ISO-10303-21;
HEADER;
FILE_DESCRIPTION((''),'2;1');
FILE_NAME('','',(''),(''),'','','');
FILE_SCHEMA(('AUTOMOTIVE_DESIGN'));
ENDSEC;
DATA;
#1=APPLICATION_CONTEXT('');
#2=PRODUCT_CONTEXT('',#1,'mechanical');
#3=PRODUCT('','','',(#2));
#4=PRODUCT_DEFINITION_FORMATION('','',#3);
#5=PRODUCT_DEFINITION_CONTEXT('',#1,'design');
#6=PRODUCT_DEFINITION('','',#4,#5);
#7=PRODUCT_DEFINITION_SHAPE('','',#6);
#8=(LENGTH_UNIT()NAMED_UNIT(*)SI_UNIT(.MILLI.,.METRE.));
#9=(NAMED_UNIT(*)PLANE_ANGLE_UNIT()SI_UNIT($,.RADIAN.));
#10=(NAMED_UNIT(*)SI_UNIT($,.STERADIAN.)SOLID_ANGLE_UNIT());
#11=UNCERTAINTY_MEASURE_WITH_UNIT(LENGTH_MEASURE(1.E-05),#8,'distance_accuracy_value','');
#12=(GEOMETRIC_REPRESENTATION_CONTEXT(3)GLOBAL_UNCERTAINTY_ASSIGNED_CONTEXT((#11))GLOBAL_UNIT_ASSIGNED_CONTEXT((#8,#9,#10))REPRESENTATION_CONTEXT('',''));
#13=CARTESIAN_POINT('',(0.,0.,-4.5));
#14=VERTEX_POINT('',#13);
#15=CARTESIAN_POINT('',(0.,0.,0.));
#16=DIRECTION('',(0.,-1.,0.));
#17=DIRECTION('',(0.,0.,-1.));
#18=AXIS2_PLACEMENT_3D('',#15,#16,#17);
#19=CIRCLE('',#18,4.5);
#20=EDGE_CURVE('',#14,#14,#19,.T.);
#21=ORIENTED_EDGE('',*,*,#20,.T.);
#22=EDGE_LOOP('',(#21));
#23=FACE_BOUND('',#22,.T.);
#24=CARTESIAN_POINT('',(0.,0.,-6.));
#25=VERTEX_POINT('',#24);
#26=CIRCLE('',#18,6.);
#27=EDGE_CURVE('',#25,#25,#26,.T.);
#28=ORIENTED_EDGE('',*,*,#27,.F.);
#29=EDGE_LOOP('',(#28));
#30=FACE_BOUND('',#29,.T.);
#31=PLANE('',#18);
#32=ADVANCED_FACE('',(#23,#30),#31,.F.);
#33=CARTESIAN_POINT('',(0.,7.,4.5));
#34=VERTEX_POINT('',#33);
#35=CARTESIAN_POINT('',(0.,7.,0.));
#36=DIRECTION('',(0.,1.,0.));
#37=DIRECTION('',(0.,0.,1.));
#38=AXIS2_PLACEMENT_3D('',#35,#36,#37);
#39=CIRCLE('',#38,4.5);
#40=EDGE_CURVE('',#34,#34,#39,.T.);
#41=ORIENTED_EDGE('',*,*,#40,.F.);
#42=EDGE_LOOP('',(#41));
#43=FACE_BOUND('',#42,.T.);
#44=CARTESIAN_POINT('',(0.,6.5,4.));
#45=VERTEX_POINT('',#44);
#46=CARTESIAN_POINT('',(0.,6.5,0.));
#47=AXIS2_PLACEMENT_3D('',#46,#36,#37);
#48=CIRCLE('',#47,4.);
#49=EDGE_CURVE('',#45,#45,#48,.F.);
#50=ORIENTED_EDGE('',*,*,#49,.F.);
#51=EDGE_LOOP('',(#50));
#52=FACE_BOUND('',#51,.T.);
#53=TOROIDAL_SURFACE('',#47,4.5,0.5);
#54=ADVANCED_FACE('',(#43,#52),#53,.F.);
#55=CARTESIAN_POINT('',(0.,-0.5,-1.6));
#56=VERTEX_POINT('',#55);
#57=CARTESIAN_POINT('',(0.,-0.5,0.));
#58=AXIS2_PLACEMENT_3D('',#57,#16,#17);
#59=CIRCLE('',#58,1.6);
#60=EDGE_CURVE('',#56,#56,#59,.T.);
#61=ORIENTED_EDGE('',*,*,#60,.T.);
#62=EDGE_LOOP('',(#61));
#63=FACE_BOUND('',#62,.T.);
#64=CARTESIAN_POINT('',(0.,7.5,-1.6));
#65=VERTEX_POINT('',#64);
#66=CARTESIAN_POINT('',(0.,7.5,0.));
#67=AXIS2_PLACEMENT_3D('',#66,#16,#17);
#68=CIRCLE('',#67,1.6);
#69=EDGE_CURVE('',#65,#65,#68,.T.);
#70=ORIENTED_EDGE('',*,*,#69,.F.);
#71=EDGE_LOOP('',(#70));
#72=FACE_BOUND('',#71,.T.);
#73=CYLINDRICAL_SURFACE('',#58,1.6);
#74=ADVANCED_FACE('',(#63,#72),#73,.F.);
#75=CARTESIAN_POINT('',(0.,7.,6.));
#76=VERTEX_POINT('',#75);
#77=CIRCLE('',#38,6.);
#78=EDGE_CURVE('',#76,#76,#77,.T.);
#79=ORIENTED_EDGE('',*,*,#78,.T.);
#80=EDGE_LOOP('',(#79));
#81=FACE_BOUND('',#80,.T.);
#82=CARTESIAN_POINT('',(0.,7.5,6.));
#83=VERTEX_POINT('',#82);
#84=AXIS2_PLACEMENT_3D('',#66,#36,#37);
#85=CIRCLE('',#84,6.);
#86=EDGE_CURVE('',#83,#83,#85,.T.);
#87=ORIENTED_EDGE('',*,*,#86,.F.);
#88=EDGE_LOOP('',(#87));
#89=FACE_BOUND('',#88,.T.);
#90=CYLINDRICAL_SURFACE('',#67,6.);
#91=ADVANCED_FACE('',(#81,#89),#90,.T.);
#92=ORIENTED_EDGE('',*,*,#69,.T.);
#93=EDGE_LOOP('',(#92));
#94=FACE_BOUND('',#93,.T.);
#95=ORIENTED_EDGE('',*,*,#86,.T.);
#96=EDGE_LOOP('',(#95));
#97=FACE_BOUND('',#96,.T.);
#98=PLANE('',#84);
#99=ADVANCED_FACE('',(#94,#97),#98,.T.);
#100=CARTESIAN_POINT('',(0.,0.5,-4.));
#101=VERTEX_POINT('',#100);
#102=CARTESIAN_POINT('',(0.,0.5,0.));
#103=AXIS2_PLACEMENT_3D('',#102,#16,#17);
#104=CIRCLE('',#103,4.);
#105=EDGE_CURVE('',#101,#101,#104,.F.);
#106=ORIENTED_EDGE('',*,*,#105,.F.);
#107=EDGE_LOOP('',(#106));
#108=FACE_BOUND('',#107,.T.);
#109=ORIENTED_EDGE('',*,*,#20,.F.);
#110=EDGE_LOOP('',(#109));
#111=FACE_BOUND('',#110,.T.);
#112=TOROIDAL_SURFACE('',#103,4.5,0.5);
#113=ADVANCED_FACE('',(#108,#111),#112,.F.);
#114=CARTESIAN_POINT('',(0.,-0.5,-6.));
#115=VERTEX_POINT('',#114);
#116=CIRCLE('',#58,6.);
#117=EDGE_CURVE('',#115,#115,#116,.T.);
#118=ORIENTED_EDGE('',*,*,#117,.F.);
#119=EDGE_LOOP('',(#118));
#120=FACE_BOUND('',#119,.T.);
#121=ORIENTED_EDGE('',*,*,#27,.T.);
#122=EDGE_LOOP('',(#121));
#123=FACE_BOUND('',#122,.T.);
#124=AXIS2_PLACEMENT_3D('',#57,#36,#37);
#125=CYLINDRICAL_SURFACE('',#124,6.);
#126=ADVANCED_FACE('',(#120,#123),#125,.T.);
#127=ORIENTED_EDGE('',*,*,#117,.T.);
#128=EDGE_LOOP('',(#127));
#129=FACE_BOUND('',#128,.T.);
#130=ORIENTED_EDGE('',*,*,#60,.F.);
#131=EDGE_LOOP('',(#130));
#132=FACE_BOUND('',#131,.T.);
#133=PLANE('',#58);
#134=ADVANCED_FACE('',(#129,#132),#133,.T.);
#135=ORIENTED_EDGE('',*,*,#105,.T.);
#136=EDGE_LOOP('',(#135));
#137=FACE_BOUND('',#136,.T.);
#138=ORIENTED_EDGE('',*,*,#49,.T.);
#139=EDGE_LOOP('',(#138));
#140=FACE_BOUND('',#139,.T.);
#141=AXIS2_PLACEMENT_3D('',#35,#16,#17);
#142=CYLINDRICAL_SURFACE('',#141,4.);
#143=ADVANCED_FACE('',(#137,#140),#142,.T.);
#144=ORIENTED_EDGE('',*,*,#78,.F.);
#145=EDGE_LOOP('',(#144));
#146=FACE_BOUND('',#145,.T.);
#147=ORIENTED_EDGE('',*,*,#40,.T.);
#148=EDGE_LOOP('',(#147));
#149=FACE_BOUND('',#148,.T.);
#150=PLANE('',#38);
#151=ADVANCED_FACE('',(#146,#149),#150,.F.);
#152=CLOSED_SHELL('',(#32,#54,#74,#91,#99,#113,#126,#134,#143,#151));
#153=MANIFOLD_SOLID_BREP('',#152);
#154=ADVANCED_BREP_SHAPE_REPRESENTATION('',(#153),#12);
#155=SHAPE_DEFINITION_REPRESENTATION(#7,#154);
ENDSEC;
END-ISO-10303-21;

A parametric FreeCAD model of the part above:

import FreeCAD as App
import Part
import Sketcher

V = App.Vector


def edges_at(feature, points):
    """Names of the edges that pass closest to the given points."""
    edges = feature.Shape.Edges
    near = lambda p: min(range(len(edges)), key=lambda i: edges[i].distToShape(Part.Vertex(*p))[0])
    return sorted({f"Edge{near(p) + 1}" for p in points})

doc = App.newDocument("Part")
body = doc.addObject("PartDesign::Body", "Body")

# Sketch on XZ plane
sketch1 = doc.addObject("Sketcher::SketchObject", "Sketch")
body.addObject(sketch1)
sketch1.AttachmentSupport = (doc.XZ_Plane, [""])
sketch1.MapMode = "FlatFace"
sketch1.addGeometry(Part.Circle(V(0, 0, 0), V(0, 0, 1), 4), False)
sketch1.addConstraint([
    Sketcher.Constraint("Coincident", 0, 3, -1, 1),
    Sketcher.Constraint("Diameter", 0, 8.0),
])
pad1 = doc.addObject("PartDesign::Pad", "Pad")
body.addObject(pad1)
pad1.Profile = sketch1
pad1.Length = 7
pad1.Reversed = True

# Sketch on XZ plane
sketch2 = doc.addObject("Sketcher::SketchObject", "Sketch001")
body.addObject(sketch2)
sketch2.AttachmentSupport = (doc.XZ_Plane, [""])
sketch2.MapMode = "FlatFace"
sketch2.AttachmentOffset = App.Placement(V(0, 0, -7), App.Rotation())
sketch2.addGeometry(Part.Circle(V(0, 0, 0), V(0, 0, 1), 6), False)
sketch2.addConstraint([
    Sketcher.Constraint("Coincident", 0, 3, -1, 1),
    Sketcher.Constraint("Diameter", 0, 12.0),
])
pad2 = doc.addObject("PartDesign::Pad", "Pad001")
body.addObject(pad2)
pad2.Profile = sketch2
pad2.Length = 0.5
pad2.Reversed = True

# Sketch on XZ plane
sketch3 = doc.addObject("Sketcher::SketchObject", "Sketch002")
body.addObject(sketch3)
sketch3.AttachmentSupport = (doc.XZ_Plane, [""])
sketch3.MapMode = "FlatFace"
sketch3.AttachmentOffset = App.Placement(V(0, 0, 0.5), App.Rotation())
sketch3.addGeometry(Part.Circle(V(0, 0, 0), V(0, 0, 1), 6), False)
sketch3.addConstraint([
    Sketcher.Constraint("Coincident", 0, 3, -1, 1),
    Sketcher.Constraint("Diameter", 0, 12.0),
])
pad3 = doc.addObject("PartDesign::Pad", "Pad002")
body.addObject(pad3)
pad3.Profile = sketch3
pad3.Length = 0.5
pad3.Reversed = True

# Sketch on XZ plane
sketch4 = doc.addObject("Sketcher::SketchObject", "Sketch003")
body.addObject(sketch4)
sketch4.AttachmentSupport = (doc.XZ_Plane, [""])
sketch4.MapMode = "FlatFace"
sketch4.AttachmentOffset = App.Placement(V(0, 0, 0.5), App.Rotation())
sketch4.addGeometry(Part.Circle(V(0, 0, 0), V(0, 0, 1), 1.6), False)
sketch4.addConstraint([
    Sketcher.Constraint("Coincident", 0, 3, -1, 1),
    Sketcher.Constraint("Diameter", 0, 3.2),
])
doc.recompute()
hole = doc.addObject("PartDesign::Hole", "Hole")
body.addObject(hole)
hole.Profile = sketch4
hole.ThreadType = "None"
hole.Diameter = 3.2
hole.DepthType = "ThroughAll"
doc.recompute()

fillet = doc.addObject("PartDesign::Fillet", "Fillet")
body.addObject(fillet)
fillet.Base = (hole, edges_at(hole, [(0, 7, -4), (0, 0, -4)]))
fillet.Radius = 0.5

doc.recompute()
